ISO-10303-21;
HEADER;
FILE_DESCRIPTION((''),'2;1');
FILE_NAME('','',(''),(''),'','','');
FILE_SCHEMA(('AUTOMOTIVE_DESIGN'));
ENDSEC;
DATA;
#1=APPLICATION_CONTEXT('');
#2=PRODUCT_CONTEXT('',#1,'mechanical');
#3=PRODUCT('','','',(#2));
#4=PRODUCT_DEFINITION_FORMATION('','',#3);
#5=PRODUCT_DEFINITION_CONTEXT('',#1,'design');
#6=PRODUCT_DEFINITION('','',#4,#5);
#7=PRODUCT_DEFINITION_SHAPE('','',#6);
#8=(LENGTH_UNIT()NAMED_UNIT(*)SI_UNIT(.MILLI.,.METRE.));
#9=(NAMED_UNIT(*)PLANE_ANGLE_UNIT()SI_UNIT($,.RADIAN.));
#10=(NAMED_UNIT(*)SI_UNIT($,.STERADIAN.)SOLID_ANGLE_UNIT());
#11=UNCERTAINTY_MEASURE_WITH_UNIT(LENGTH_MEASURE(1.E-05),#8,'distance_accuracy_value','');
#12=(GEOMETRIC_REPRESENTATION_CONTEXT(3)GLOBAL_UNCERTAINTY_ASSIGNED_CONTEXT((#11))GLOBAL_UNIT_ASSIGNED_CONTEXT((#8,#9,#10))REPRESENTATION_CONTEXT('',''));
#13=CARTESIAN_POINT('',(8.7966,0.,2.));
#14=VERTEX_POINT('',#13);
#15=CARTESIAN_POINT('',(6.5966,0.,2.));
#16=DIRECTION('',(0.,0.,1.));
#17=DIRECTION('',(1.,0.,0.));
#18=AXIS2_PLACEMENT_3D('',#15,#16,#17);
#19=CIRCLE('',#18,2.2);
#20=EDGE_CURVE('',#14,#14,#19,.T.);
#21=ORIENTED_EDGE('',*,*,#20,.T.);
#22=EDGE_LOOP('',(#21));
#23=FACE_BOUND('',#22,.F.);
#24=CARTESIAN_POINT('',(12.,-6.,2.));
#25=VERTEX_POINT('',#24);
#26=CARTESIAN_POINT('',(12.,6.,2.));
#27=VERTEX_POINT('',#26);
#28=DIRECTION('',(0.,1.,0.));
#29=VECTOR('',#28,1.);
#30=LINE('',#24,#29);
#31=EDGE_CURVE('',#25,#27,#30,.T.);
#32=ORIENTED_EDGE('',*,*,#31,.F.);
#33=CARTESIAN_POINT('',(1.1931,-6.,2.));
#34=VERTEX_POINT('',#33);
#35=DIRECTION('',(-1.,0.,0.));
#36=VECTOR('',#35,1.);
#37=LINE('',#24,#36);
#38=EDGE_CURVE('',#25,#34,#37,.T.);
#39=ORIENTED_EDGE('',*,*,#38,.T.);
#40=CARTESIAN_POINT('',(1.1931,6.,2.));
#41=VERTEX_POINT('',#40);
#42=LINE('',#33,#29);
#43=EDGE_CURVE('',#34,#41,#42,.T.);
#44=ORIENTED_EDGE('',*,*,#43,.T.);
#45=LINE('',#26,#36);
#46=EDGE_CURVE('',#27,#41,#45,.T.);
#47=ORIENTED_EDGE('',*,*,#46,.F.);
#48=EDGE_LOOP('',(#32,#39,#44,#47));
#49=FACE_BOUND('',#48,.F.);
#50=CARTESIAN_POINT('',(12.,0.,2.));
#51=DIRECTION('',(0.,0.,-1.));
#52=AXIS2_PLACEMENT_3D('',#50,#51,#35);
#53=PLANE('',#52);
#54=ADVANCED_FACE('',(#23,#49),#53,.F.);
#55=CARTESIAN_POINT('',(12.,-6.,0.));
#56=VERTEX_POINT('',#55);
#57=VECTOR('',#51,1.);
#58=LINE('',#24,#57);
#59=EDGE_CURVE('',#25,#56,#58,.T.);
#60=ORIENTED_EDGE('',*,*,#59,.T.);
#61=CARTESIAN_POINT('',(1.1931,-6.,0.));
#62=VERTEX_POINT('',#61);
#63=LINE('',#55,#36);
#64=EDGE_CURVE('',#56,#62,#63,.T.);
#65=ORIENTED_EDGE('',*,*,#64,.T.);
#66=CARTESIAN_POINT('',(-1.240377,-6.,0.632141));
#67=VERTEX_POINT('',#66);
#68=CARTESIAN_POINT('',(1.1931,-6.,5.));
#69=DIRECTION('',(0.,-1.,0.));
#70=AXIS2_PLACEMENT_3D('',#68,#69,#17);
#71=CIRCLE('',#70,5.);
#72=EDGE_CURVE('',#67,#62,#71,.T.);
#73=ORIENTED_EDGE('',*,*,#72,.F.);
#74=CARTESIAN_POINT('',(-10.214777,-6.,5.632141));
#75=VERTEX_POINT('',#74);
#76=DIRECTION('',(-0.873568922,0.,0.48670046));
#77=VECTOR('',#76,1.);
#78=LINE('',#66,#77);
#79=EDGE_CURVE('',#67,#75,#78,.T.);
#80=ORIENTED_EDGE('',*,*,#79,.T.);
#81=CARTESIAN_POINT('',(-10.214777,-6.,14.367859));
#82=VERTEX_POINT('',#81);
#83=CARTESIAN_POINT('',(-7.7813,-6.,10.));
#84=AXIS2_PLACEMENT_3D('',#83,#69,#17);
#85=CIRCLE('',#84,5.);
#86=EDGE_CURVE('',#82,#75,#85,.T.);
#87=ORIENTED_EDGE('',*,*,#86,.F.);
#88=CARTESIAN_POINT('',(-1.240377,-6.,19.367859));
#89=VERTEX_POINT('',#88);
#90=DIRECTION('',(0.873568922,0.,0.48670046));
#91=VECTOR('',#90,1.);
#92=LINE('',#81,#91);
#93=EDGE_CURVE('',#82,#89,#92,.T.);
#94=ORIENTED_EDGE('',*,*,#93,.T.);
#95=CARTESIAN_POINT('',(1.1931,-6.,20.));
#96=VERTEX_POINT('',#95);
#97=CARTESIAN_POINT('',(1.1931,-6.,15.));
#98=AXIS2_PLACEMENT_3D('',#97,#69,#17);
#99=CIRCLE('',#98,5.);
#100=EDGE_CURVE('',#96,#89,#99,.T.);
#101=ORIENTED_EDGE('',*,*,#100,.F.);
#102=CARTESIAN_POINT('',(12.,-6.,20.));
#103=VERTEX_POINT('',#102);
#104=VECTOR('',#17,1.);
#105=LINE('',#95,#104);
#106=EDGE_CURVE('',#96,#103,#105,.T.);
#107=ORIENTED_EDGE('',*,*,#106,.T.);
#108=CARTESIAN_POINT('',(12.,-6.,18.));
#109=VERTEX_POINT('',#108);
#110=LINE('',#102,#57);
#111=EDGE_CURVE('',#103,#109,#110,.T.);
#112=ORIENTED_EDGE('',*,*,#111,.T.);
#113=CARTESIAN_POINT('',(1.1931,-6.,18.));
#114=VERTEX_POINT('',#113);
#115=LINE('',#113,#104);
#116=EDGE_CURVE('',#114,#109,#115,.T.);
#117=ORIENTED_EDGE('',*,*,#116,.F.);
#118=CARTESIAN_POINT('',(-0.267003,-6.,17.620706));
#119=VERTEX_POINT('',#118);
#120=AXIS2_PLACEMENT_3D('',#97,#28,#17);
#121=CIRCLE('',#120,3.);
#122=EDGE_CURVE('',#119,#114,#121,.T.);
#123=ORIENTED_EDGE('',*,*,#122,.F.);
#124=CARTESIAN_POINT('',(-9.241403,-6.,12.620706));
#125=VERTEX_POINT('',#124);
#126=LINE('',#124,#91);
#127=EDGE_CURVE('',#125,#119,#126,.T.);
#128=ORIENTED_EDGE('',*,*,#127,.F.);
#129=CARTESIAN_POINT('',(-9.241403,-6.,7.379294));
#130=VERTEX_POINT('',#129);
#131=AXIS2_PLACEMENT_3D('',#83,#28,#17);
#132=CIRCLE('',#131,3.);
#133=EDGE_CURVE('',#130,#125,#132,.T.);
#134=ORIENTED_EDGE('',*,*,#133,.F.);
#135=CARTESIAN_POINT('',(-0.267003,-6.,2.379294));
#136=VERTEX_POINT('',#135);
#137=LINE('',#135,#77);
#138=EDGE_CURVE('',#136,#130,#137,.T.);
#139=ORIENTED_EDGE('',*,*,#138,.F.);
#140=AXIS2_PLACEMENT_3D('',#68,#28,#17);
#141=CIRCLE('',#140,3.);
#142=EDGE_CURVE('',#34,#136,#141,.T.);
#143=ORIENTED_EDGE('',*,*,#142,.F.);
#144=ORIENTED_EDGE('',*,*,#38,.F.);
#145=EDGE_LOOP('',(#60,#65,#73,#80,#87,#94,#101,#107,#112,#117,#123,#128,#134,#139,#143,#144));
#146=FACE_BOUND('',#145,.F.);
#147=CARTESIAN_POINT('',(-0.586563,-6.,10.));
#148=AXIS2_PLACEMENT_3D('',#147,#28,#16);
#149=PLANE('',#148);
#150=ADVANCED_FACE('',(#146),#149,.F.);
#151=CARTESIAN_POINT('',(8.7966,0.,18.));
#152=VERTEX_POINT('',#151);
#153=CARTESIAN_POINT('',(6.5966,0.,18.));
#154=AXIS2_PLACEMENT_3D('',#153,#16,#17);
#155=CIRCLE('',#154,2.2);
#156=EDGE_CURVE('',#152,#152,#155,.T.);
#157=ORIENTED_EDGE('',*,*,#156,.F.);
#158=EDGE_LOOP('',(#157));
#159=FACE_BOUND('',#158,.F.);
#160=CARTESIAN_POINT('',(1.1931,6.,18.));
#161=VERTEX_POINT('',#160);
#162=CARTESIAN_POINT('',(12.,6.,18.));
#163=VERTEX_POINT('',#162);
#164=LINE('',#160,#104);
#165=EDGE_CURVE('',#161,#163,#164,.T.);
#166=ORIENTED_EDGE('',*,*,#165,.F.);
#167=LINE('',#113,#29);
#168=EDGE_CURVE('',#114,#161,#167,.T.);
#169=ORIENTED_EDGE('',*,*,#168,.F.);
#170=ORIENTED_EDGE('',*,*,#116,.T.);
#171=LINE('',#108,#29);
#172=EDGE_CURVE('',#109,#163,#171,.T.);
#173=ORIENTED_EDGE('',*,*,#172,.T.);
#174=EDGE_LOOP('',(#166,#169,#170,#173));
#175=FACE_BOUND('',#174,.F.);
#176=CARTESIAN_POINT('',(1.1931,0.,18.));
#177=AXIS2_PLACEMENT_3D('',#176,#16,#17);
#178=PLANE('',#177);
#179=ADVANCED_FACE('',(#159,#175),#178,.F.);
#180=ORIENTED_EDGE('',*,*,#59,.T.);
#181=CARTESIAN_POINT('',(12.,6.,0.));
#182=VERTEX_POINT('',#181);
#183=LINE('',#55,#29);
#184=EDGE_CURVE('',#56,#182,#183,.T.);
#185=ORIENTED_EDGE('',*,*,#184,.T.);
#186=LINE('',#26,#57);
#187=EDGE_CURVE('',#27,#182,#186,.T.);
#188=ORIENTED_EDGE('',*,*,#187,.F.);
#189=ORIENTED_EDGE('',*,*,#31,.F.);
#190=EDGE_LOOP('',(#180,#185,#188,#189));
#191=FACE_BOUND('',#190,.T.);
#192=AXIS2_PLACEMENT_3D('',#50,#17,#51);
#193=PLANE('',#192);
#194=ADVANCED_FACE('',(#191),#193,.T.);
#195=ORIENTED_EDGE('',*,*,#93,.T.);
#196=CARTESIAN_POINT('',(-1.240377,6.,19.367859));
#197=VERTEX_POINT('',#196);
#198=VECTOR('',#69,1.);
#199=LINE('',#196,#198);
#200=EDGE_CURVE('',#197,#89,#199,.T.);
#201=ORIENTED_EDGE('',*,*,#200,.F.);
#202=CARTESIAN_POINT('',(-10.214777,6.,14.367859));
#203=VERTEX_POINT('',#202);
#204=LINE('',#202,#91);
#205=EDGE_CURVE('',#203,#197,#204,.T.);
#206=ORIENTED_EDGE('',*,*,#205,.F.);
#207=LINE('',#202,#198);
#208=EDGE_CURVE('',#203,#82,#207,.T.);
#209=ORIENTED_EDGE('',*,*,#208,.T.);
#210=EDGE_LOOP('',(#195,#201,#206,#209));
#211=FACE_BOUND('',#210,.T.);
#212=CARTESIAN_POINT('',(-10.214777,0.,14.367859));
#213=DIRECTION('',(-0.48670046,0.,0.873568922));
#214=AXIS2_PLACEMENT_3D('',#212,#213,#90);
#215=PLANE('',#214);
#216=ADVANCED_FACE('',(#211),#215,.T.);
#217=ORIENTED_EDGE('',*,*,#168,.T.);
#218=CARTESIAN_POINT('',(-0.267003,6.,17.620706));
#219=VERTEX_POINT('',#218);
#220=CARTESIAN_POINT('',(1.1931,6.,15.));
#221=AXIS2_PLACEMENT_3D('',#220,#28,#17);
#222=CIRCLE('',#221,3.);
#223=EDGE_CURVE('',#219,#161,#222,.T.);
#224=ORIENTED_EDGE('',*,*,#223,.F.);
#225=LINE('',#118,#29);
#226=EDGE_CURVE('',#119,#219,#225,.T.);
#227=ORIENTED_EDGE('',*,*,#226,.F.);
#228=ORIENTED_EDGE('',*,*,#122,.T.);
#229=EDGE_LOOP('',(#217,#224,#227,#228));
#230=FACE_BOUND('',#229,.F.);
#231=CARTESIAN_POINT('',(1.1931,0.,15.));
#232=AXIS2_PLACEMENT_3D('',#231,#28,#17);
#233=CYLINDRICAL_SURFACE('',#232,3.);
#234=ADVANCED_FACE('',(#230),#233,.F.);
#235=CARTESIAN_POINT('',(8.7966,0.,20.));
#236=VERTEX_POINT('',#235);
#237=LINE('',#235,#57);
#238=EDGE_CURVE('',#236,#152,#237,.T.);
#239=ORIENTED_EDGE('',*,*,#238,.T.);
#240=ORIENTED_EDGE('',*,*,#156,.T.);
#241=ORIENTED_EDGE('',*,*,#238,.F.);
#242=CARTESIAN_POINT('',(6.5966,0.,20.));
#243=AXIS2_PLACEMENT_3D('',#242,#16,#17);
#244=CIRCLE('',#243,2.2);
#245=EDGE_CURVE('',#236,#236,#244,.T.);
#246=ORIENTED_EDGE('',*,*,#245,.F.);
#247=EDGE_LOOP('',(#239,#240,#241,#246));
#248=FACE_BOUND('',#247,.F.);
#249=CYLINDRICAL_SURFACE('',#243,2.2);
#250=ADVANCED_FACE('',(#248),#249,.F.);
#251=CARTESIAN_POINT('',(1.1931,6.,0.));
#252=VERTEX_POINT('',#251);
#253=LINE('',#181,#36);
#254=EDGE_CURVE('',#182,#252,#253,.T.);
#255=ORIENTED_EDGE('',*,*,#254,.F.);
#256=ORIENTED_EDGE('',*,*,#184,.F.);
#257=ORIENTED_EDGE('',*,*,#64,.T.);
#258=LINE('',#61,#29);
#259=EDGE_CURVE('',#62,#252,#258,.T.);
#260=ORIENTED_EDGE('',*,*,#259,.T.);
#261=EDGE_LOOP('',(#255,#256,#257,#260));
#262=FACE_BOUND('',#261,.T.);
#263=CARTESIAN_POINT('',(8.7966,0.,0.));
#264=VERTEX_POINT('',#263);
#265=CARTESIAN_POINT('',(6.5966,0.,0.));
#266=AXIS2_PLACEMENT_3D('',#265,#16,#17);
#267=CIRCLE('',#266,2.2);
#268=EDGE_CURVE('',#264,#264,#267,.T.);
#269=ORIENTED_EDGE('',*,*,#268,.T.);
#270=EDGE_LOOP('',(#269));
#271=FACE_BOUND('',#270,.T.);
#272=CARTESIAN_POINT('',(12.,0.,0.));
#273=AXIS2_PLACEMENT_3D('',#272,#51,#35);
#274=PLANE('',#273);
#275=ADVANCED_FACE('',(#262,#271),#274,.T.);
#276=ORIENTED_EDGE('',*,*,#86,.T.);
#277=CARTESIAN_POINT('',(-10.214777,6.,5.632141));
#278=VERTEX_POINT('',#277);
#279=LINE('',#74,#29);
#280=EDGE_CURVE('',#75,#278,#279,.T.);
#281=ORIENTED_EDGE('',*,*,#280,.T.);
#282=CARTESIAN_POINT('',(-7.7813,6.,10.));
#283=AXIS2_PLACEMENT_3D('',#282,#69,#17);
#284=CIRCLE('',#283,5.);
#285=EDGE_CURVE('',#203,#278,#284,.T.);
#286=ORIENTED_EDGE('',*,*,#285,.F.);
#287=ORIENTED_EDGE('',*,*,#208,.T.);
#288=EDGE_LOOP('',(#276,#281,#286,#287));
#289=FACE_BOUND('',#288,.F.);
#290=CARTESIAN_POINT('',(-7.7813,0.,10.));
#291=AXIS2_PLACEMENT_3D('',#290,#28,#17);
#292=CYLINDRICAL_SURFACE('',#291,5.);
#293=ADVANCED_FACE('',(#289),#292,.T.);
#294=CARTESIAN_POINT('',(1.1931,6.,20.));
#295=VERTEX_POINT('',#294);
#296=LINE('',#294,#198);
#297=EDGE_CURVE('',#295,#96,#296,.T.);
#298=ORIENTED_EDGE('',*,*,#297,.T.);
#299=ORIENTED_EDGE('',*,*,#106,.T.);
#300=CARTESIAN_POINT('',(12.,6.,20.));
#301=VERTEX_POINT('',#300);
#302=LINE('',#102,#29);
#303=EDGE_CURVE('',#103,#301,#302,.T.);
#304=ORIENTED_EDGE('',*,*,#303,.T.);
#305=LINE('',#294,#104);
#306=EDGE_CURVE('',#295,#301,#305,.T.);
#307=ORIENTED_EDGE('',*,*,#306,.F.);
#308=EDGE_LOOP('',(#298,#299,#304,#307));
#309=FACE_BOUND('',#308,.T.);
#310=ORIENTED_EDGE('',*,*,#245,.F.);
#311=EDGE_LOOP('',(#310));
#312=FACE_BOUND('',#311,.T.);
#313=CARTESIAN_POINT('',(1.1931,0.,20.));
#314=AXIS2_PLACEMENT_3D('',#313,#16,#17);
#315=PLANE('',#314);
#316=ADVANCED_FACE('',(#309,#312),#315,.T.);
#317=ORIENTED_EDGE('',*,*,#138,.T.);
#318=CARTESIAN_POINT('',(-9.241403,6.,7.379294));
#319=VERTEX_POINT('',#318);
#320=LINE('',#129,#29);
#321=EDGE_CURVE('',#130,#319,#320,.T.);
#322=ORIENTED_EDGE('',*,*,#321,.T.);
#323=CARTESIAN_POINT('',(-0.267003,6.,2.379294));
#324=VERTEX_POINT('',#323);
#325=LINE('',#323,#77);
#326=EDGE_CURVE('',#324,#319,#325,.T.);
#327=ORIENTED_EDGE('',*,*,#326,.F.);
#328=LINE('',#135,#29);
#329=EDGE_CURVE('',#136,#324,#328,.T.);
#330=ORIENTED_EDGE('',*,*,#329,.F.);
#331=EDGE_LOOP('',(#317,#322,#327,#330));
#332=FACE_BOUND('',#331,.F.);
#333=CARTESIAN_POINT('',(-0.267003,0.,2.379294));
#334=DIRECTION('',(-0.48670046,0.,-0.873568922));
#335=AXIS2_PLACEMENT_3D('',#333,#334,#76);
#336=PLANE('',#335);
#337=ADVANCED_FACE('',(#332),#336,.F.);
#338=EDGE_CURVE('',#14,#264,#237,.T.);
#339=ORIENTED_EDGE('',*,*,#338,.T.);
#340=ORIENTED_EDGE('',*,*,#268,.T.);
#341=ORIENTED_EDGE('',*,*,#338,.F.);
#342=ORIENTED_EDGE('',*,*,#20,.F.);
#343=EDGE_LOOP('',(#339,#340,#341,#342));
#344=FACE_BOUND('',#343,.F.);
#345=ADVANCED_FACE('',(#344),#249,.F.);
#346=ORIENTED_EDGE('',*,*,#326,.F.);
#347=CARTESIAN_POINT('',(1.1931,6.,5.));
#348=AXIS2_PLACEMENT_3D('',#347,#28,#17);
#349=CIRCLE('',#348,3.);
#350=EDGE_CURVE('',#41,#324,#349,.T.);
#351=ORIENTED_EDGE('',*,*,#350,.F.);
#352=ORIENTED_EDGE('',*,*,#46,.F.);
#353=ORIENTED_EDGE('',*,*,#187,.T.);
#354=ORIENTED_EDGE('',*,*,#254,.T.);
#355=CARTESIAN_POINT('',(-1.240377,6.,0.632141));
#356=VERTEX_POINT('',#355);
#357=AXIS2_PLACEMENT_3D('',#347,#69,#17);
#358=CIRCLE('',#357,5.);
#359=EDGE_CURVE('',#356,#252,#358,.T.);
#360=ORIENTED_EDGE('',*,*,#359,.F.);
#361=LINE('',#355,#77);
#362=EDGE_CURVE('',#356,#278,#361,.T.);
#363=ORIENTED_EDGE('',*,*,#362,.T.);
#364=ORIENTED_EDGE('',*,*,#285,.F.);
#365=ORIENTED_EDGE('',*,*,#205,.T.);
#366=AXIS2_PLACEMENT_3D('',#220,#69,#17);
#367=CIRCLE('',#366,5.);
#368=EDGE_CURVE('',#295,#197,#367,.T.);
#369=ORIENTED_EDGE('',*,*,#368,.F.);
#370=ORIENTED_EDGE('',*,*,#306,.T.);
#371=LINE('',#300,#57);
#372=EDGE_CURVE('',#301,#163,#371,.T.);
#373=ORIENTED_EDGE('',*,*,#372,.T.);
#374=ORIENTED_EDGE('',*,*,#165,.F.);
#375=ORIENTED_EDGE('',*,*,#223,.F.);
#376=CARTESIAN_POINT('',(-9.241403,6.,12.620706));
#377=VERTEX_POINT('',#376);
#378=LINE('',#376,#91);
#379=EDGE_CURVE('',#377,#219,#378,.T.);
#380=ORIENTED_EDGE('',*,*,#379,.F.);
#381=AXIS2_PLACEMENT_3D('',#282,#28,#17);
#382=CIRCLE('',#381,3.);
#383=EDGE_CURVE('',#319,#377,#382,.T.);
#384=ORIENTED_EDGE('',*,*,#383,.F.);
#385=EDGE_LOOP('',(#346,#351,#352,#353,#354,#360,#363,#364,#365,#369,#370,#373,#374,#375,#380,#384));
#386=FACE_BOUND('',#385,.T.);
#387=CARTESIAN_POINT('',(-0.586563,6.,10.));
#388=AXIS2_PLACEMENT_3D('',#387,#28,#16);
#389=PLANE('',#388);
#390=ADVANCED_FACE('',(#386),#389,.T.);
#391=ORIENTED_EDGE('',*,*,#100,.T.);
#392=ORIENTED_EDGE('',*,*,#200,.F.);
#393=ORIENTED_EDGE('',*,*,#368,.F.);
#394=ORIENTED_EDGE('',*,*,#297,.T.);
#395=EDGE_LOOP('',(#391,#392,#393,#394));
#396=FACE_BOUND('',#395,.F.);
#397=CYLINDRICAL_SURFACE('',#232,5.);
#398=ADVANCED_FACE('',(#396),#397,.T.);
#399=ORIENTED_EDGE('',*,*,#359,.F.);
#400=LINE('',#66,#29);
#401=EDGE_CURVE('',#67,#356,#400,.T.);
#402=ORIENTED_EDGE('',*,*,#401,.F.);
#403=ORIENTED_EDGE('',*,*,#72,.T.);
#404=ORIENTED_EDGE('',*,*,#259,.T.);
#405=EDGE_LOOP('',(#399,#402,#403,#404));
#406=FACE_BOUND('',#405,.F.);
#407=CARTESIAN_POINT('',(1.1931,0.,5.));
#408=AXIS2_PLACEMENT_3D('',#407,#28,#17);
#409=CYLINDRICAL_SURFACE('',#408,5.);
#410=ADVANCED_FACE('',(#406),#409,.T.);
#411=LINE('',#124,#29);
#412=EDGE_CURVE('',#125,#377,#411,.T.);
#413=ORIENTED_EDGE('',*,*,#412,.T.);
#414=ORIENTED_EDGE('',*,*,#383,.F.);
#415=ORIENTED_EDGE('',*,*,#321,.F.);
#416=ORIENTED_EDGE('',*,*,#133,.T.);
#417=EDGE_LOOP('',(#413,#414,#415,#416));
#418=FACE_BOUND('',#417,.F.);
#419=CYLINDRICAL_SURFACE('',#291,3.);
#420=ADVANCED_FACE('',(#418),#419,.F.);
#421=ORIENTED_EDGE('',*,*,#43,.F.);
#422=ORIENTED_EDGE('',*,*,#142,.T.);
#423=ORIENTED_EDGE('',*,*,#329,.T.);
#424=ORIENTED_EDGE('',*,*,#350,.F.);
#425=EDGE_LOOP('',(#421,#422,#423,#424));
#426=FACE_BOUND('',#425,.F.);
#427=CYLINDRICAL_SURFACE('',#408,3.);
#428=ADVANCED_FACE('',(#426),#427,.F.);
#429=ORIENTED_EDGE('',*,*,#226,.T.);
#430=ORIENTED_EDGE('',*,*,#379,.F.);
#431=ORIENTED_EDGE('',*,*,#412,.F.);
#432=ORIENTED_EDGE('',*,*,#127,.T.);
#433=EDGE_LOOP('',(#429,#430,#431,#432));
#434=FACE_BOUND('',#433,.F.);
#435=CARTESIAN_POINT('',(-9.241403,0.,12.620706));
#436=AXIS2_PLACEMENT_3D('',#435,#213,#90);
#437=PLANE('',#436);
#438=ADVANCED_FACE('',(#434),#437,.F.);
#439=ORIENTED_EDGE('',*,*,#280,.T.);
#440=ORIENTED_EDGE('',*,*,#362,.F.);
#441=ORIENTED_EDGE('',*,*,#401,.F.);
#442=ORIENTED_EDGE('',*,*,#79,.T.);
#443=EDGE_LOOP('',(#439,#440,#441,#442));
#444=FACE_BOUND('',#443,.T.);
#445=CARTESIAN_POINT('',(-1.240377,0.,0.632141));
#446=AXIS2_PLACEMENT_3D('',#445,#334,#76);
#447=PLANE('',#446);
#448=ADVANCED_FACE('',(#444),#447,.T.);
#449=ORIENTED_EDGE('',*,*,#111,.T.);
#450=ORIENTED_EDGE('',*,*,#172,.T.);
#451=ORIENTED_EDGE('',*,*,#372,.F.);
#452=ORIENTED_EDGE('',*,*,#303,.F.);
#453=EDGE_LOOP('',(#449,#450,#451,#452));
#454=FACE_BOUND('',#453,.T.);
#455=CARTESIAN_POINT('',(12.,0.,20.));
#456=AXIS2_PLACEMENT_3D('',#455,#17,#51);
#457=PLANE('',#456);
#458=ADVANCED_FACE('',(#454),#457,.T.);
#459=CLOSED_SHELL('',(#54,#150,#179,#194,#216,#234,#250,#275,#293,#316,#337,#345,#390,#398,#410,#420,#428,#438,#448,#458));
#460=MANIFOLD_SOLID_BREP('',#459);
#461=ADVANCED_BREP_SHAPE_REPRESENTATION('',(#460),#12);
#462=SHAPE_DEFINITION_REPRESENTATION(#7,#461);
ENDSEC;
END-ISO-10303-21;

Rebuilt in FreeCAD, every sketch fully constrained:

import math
import FreeCAD as App
import Part
import Sketcher
Q = App.Units.Quantity

doc = App.newDocument("Part")
body = doc.addObject("PartDesign::Body", "Body")

# Sketch on XZ plane
sketch1 = doc.addObject("Sketcher::SketchObject", "Sketch")
body.addObject(sketch1)
sketch1.AttachmentSupport = (doc.XZ_Plane, [""])
sketch1.MapMode = "FlatFace"
sketch1.addGeometry([
    Part.LineSegment(App.Vector(12, 20, 0), App.Vector(1.2, 20, 0)),  # 0
    Part.ArcOfCircle(Part.Circle(App.Vector(1.2, 15, 0), App.Vector(0, 0, 1), 5), math.radians(90), math.radians(119)),  # 1
    Part.LineSegment(App.Vector(-1.2, 19.4, 0), App.Vector(-10.2, 14.4, 0)),  # 2
    Part.ArcOfCircle(Part.Circle(App.Vector(-7.8, 10, 0), App.Vector(0, 0, 1), 5), math.radians(119), math.radians(241)),  # 3
    Part.LineSegment(App.Vector(-10.2, 5.6, 0), App.Vector(-1.2, 0.6, 0)),  # 4
    Part.ArcOfCircle(Part.Circle(App.Vector(1.2, 5, 0), App.Vector(0, 0, 1), 5), math.radians(-119), math.radians(-90)),  # 5
    Part.LineSegment(App.Vector(1.2, 0, 0), App.Vector(12, 0, 0)),  # 6
    Part.LineSegment(App.Vector(12, 0, 0), App.Vector(12, 2, 0)),  # 7
    Part.LineSegment(App.Vector(12, 2, 0), App.Vector(1.2, 2, 0)),  # 8
    Part.ArcOfCircle(Part.Circle(App.Vector(1.2, 5, 0), App.Vector(0, 0, 1), 3), math.radians(-119), math.radians(-90)),  # 9
    Part.LineSegment(App.Vector(-0.3, 2.4, 0), App.Vector(-9.2, 7.4, 0)),  # 10
    Part.ArcOfCircle(Part.Circle(App.Vector(-7.8, 10, 0), App.Vector(0, 0, 1), 3), math.radians(119), math.radians(241)),  # 11
    Part.LineSegment(App.Vector(-9.2, 12.6, 0), App.Vector(-0.3, 17.6, 0)),  # 12
    Part.ArcOfCircle(Part.Circle(App.Vector(1.2, 15, 0), App.Vector(0, 0, 1), 3), math.radians(90), math.radians(119)),  # 13
    Part.LineSegment(App.Vector(1.2, 18, 0), App.Vector(12, 18, 0)),  # 14
    Part.LineSegment(App.Vector(12, 18, 0), App.Vector(12, 20, 0)),  # 15
], False)
sketch1.addConstraint([
    Sketcher.Constraint("Tangent", 0, 2, 1, 1),
    Sketcher.Constraint("Tangent", 1, 2, 2, 1),
    Sketcher.Constraint("Tangent", 2, 2, 3, 1),
    Sketcher.Constraint("Tangent", 3, 2, 4, 1),
    Sketcher.Constraint("Tangent", 4, 2, 5, 1),
    Sketcher.Constraint("Tangent", 5, 2, 6, 1),
    Sketcher.Constraint("Coincident", 6, 2, 7, 1),
    Sketcher.Constraint("Coincident", 7, 2, 8, 1),
    Sketcher.Constraint("Tangent", 8, 2, 9, 2),
    Sketcher.Constraint("Tangent", 9, 1, 10, 1),
    Sketcher.Constraint("Tangent", 10, 2, 11, 2),
    Sketcher.Constraint("Tangent", 11, 1, 12, 1),
    Sketcher.Constraint("Tangent", 12, 2, 13, 2),
    Sketcher.Constraint("Tangent", 13, 1, 14, 1),
    Sketcher.Constraint("Coincident", 14, 2, 15, 1),
    Sketcher.Constraint("Coincident", 15, 2, 0, 1),
    Sketcher.Constraint("Horizontal", 0),
    Sketcher.Constraint("Horizontal", 6),
    Sketcher.Constraint("Vertical", 7),
    Sketcher.Constraint("Horizontal", 8),
    Sketcher.Constraint("Horizontal", 14),
    Sketcher.Constraint("Vertical", 15),
    Sketcher.Constraint("Coincident", 9, 3, 5, 3),
    Sketcher.Constraint("Coincident", 11, 3, 3, 3),
    Sketcher.Constraint("Coincident", 13, 3, 1, 3),
    Sketcher.Constraint("Equal", 1, 3),
    Sketcher.Constraint("Equal", 3, 5),
    Sketcher.Constraint("Equal", 9, 11),
    Sketcher.Constraint("Equal", 11, 13),
    Sketcher.Constraint("PointOnObject", 5, 2, -1),
    Sketcher.Constraint("Vertical", 1, 3, 5, 3),
    Sketcher.Constraint("Vertical", 2, 2, 3, 2),
    Sketcher.Constraint("Vertical", 7, 2, 14, 2),
    Sketcher.Constraint("Radius", 1, Q("5 mm")),
    Sketcher.Constraint("Radius", 9, Q("3 mm")),
    Sketcher.Constraint("DistanceY", -1, 1, 1, 3, Q("15 mm")),
    Sketcher.Constraint("DistanceX", -1, 1, 6, 2, Q("12 mm")),
    Sketcher.Constraint("DistanceX", 0, 2, 0, 1, Q("10.807 mm")),
    Sketcher.Constraint("DistanceX", 9, 1, 8, 2, Q("1.46 mm")),
])
pad1 = doc.addObject("PartDesign::Pad", "Pad")
body.addObject(pad1)
pad1.Profile = sketch1
pad1.Length = 12
pad1.Midplane = True

# Sketch on XY plane
sketch2 = doc.addObject("Sketcher::SketchObject", "Sketch001")
body.addObject(sketch2)
sketch2.AttachmentSupport = (doc.XY_Plane, [""])
sketch2.MapMode = "FlatFace"
sketch2.AttachmentOffset = App.Placement(App.Vector(0, 0, 20), App.Rotation())
sketch2.addGeometry(Part.Circle(App.Vector(6.6, 0, 0), App.Vector(0, 0, 1), 2.2), False)
sketch2.addConstraint([
    Sketcher.Constraint("PointOnObject", 0, 3, -1),
    Sketcher.Constraint("Diameter", 0, Q("4.4 mm")),
    Sketcher.Constraint("DistanceX", -1, 1, 0, 3, Q("6.5966 mm")),
])
pocket1 = doc.addObject("PartDesign::Pocket", "Pocket")
body.addObject(pocket1)
pocket1.Profile = sketch2
pocket1.Type = "ThroughAll"

doc.recompute()
